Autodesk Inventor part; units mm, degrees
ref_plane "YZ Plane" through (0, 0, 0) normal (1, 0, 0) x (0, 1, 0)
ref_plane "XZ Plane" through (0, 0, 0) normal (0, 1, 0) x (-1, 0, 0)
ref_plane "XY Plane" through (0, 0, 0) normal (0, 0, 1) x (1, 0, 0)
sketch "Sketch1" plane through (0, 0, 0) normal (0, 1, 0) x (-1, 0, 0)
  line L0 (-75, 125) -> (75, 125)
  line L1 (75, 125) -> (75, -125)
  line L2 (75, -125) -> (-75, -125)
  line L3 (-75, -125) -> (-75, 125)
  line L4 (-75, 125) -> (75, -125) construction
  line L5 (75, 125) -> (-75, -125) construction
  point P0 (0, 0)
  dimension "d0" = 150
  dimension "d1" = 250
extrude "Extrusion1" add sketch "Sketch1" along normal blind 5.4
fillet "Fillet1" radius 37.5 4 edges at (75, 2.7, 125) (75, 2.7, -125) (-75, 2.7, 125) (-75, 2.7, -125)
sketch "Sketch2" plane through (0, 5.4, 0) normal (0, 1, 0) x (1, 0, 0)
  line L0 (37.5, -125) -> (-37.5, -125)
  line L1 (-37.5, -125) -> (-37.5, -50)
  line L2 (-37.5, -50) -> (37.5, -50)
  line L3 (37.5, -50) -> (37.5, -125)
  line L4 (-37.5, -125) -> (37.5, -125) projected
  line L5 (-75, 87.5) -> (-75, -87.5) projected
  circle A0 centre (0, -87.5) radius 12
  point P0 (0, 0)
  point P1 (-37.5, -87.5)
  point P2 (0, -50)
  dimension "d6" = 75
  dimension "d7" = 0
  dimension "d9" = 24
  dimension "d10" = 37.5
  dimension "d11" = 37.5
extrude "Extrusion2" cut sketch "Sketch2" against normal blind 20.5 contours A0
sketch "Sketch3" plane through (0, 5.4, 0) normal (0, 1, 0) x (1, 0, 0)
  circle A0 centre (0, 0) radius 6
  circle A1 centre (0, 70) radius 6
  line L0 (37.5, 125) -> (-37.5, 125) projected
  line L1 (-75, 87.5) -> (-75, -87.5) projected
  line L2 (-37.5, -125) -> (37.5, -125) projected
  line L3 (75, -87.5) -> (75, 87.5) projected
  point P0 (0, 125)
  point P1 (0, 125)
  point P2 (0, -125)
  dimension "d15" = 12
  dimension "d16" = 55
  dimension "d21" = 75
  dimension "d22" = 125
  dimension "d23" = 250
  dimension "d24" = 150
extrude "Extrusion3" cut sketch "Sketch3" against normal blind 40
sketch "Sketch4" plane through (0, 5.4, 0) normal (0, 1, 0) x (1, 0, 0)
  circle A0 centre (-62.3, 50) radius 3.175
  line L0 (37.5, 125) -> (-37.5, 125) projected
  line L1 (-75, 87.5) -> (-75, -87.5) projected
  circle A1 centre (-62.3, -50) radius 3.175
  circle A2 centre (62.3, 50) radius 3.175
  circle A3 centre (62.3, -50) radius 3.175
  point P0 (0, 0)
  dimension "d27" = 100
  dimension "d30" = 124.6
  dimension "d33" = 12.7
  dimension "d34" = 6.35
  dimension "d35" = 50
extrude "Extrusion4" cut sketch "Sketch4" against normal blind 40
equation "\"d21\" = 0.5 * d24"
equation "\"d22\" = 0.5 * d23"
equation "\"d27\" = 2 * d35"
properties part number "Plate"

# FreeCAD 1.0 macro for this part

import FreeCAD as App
import Part
import Sketcher
Q = App.Units.Quantity


def edges_at(feature, points):
    """Names of the edges that pass closest to the given points."""
    edges = feature.Shape.Edges
    near = lambda p: min(range(len(edges)), key=lambda i: edges[i].distToShape(Part.Vertex(*p))[0])
    return sorted({f"Edge{near(p) + 1}" for p in points})

doc = App.newDocument("Part")
body = doc.addObject("PartDesign::Body", "Body")

sketch1 = doc.addObject("Sketcher::SketchObject", "Sketch")
body.addObject(sketch1)
sketch1.AttachmentSupport = (doc.XZ_Plane, [""])
sketch1.MapMode = "FlatFace"
sketch1.addGeometry([
    Part.LineSegment(App.Vector(-75, 125, 0), App.Vector(75, 125, 0)),
    Part.LineSegment(App.Vector(75, 125, 0), App.Vector(75, -125, 0)),
    Part.LineSegment(App.Vector(75, -125, 0), App.Vector(-75, -125, 0)),
    Part.LineSegment(App.Vector(-75, -125, 0), App.Vector(-75, 125, 0)),
], False)
sketch1.addConstraint([
    Sketcher.Constraint("Coincident", 0, 2, 1, 1),
    Sketcher.Constraint("Coincident", 1, 2, 2, 1),
    Sketcher.Constraint("Coincident", 2, 2, 3, 1),
    Sketcher.Constraint("Coincident", 3, 2, 0, 1),
    Sketcher.Constraint("Horizontal", 0),
    Sketcher.Constraint("Vertical", 1),
    Sketcher.Constraint("Horizontal", 2),
    Sketcher.Constraint("Vertical", 3),
    Sketcher.Constraint("Symmetric", 0, 2, 2, 2, -1, 1),
    Sketcher.Constraint("DistanceX", 0, 1, 0, 2, Q("150 mm")),
    Sketcher.Constraint("DistanceY", 1, 2, 1, 1, Q("250 mm")),
])
pad1 = doc.addObject("PartDesign::Pad", "Pad")
body.addObject(pad1)
pad1.Profile = sketch1
pad1.Length = 5.4
pad1.Reversed = True
doc.recompute()

fillet = doc.addObject("PartDesign::Fillet", "Fillet")
body.addObject(fillet)
fillet.Base = (pad1, edges_at(pad1, [
    (75, 2.7, 125),
    (75, 2.7, -125),
    (-75, 2.7, 125),
    (-75, 2.7, -125),
]))
fillet.Radius = 37.5

sketch2 = doc.addObject("Sketcher::SketchObject", "Sketch001")
body.addObject(sketch2)
sketch2.AttachmentSupport = (doc.XZ_Plane, [""])
sketch2.MapMode = "FlatFace"
sketch2.AttachmentOffset = App.Placement(App.Vector(0, 0, -5.4), App.Rotation())
sketch2.addGeometry(Part.Circle(App.Vector(0, 88, 0), App.Vector(0, 0, 1), 12), False)
sketch2.addConstraint([
    Sketcher.Constraint("PointOnObject", 0, 3, -2),
    Sketcher.Constraint("Diameter", 0, Q("24 mm")),
    Sketcher.Constraint("DistanceY", -1, 1, 0, 3, Q("87.5 mm")),
])
pocket1 = doc.addObject("PartDesign::Pocket", "Pocket")
body.addObject(pocket1)
pocket1.Profile = sketch2
pocket1.Length = 20.5
pocket1.Reversed = True

sketch3 = doc.addObject("Sketcher::SketchObject", "Sketch002")
body.addObject(sketch3)
sketch3.AttachmentSupport = (doc.XZ_Plane, [""])
sketch3.MapMode = "FlatFace"
sketch3.AttachmentOffset = App.Placement(App.Vector(0, 0, -5.4), App.Rotation())
sketch3.addGeometry([
    Part.Circle(App.Vector(0, 0, 0), App.Vector(0, 0, 1), 6),
    Part.Circle(App.Vector(0, -70, 0), App.Vector(0, 0, 1), 6),
], False)
sketch3.addConstraint([
    Sketcher.Constraint("Coincident", 0, 3, -1, 1),
    Sketcher.Constraint("Equal", 0, 1),
    Sketcher.Constraint("PointOnObject", 1, 3, -2),
    Sketcher.Constraint("Diameter", 0, Q("12 mm")),
    Sketcher.Constraint("DistanceY", 1, 3, -1, 1, Q("70 mm")),
])
pocket2 = doc.addObject("PartDesign::Pocket", "Pocket001")
body.addObject(pocket2)
pocket2.Profile = sketch3
pocket2.Length = 40
pocket2.Reversed = True

sketch4 = doc.addObject("Sketcher::SketchObject", "Sketch003")
body.addObject(sketch4)
sketch4.AttachmentSupport = (doc.XZ_Plane, [""])
sketch4.MapMode = "FlatFace"
sketch4.AttachmentOffset = App.Placement(App.Vector(0, 0, -5.4), App.Rotation())
sketch4.addGeometry([
    Part.Circle(App.Vector(-62.3, -50, 0), App.Vector(0, 0, 1), 3.2),
    Part.Circle(App.Vector(-62.3, 50, 0), App.Vector(0, 0, 1), 3.2),
    Part.Circle(App.Vector(62.3, -50, 0), App.Vector(0, 0, 1), 3.2),
    Part.Circle(App.Vector(62.3, 50, 0), App.Vector(0, 0, 1), 3.2),
], False)
sketch4.addConstraint([
    Sketcher.Constraint("Equal", 0, 1),
    Sketcher.Constraint("Equal", 1, 2),
    Sketcher.Constraint("Equal", 2, 3),
    Sketcher.Constraint("Symmetric", 1, 3, 2, 3, -1, 1),
    Sketcher.Constraint("Symmetric", 0, 3, 3, 3, -1, 1),
    Sketcher.Constraint("Symmetric", 0, 3, 2, 3, -2),
    Sketcher.Constraint("Diameter", 0, Q("6.35 mm")),
    Sketcher.Constraint("DistanceY", 0, 3, -1, 1, Q("50 mm")),
    Sketcher.Constraint("DistanceX", 0, 3, 2, 3, Q("124.6 mm")),
])
pocket3 = doc.addObject("PartDesign::Pocket", "Pocket002")
body.addObject(pocket3)
pocket3.Profile = sketch4
pocket3.Length = 40
pocket3.Reversed = True

doc.recompute()
